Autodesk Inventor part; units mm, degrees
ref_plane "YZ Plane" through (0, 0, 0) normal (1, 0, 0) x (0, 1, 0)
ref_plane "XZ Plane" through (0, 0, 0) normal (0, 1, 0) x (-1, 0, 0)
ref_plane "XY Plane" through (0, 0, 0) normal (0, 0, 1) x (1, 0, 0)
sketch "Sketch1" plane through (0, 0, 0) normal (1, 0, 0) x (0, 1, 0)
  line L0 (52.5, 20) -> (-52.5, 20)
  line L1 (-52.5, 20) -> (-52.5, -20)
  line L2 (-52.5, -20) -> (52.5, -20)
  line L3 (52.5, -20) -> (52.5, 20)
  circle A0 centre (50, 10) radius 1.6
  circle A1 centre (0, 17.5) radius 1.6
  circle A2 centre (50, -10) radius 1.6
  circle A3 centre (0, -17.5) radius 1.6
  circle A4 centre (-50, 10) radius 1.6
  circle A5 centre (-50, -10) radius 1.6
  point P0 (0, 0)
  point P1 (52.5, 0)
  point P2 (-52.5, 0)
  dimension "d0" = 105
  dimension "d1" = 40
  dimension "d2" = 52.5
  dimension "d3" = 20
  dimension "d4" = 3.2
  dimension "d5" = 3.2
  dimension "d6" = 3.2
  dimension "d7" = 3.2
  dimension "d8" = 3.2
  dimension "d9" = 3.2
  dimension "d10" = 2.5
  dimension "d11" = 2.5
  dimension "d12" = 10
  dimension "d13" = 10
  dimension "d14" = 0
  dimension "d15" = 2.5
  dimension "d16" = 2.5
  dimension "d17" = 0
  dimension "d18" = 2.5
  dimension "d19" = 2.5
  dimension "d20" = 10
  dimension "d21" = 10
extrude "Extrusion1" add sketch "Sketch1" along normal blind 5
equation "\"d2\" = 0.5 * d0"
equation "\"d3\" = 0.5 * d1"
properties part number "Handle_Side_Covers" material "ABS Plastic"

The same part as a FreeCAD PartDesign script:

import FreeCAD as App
import Part
import Sketcher

V = App.Vector
Q = App.Units.Quantity


def add_polygon(sketch, points):
    """Adds a closed chain of lines whose ends are joined by coincident constraints."""
    first, n = sketch.GeometryCount, len(points)
    for a, b in zip(points, points[1:] + points[:1]):
        sketch.addGeometry(Part.LineSegment(App.Vector(*a, 0), App.Vector(*b, 0)), False)
    for i in range(n):
        sketch.addConstraint(Sketcher.Constraint("Coincident", first + i, 2, first + (i + 1) % n, 1))

doc = App.newDocument("Part")
body = doc.addObject("PartDesign::Body", "Body")

sketch1 = doc.addObject("Sketcher::SketchObject", "Sketch")
body.addObject(sketch1)
sketch1.AttachmentSupport = (doc.YZ_Plane, [""])
sketch1.MapMode = "FlatFace"
add_polygon(sketch1, [(52.5, -20), (52.5, 20), (-52.5, 20), (-52.5, -20)])
sketch1.addGeometry(Part.Circle(V(-50, -10, 0), V(0, 0, 1), 1.6), False)
sketch1.addGeometry(Part.Circle(V(0, -17.5, 0), V(0, 0, 1), 1.6), False)
sketch1.addGeometry(Part.Circle(V(50, -10, 0), V(0, 0, 1), 1.6), False)
sketch1.addGeometry(Part.Circle(V(-50, 10, 0), V(0, 0, 1), 1.6), False)
sketch1.addGeometry(Part.Circle(V(0, 17.5, 0), V(0, 0, 1), 1.6), False)
sketch1.addGeometry(Part.Circle(V(50, 10, 0), V(0, 0, 1), 1.6), False)
sketch1.addConstraint(Sketcher.Constraint("Vertical", 0))
sketch1.addConstraint(Sketcher.Constraint("Horizontal", 1))
sketch1.addConstraint(Sketcher.Constraint("Vertical", 2))
sketch1.addConstraint(Sketcher.Constraint("Horizontal", 3))
sketch1.addConstraint(Sketcher.Constraint("Equal", 4, 5))
sketch1.addConstraint(Sketcher.Constraint("Equal", 5, 6))
sketch1.addConstraint(Sketcher.Constraint("Equal", 6, 7))
sketch1.addConstraint(Sketcher.Constraint("Equal", 7, 8))
sketch1.addConstraint(Sketcher.Constraint("Equal", 8, 9))
sketch1.addConstraint(Sketcher.Constraint("Symmetric", 6, 3, 7, 3, -1, 1))
sketch1.addConstraint(Sketcher.Constraint("Symmetric", 5, 3, 8, 3, -1, 1))
sketch1.addConstraint(Sketcher.Constraint("Symmetric", 4, 3, 9, 3, -1, 1))
sketch1.addConstraint(Sketcher.Constraint("Symmetric", 0, 2, 2, 2, -1, 1))
sketch1.addConstraint(Sketcher.Constraint("Symmetric", 4, 3, 6, 3, -2))
sketch1.addConstraint(Sketcher.Constraint("PointOnObject", 5, 3, -2))
sketch1.addConstraint(Sketcher.Constraint("Diameter", 4, Q("3.2 mm")))
sketch1.addConstraint(Sketcher.Constraint("DistanceX", 1, 2, 1, 1, Q("105 mm")))
sketch1.addConstraint(Sketcher.Constraint("DistanceY", 0, 1, 0, 2, Q("40 mm")))
sketch1.addConstraint(Sketcher.Constraint("DistanceY", 4, 3, -1, 1, Q("10 mm")))
sketch1.addConstraint(Sketcher.Constraint("DistanceX", 9, 3, 0, 2, Q("2.5 mm")))
sketch1.addConstraint(Sketcher.Constraint("DistanceY", 8, 3, 0, 2, Q("2.5 mm")))
pad1 = doc.addObject("PartDesign::Pad", "Pad")
body.addObject(pad1)
pad1.Profile = sketch1
pad1.Length = 5

doc.recompute()
